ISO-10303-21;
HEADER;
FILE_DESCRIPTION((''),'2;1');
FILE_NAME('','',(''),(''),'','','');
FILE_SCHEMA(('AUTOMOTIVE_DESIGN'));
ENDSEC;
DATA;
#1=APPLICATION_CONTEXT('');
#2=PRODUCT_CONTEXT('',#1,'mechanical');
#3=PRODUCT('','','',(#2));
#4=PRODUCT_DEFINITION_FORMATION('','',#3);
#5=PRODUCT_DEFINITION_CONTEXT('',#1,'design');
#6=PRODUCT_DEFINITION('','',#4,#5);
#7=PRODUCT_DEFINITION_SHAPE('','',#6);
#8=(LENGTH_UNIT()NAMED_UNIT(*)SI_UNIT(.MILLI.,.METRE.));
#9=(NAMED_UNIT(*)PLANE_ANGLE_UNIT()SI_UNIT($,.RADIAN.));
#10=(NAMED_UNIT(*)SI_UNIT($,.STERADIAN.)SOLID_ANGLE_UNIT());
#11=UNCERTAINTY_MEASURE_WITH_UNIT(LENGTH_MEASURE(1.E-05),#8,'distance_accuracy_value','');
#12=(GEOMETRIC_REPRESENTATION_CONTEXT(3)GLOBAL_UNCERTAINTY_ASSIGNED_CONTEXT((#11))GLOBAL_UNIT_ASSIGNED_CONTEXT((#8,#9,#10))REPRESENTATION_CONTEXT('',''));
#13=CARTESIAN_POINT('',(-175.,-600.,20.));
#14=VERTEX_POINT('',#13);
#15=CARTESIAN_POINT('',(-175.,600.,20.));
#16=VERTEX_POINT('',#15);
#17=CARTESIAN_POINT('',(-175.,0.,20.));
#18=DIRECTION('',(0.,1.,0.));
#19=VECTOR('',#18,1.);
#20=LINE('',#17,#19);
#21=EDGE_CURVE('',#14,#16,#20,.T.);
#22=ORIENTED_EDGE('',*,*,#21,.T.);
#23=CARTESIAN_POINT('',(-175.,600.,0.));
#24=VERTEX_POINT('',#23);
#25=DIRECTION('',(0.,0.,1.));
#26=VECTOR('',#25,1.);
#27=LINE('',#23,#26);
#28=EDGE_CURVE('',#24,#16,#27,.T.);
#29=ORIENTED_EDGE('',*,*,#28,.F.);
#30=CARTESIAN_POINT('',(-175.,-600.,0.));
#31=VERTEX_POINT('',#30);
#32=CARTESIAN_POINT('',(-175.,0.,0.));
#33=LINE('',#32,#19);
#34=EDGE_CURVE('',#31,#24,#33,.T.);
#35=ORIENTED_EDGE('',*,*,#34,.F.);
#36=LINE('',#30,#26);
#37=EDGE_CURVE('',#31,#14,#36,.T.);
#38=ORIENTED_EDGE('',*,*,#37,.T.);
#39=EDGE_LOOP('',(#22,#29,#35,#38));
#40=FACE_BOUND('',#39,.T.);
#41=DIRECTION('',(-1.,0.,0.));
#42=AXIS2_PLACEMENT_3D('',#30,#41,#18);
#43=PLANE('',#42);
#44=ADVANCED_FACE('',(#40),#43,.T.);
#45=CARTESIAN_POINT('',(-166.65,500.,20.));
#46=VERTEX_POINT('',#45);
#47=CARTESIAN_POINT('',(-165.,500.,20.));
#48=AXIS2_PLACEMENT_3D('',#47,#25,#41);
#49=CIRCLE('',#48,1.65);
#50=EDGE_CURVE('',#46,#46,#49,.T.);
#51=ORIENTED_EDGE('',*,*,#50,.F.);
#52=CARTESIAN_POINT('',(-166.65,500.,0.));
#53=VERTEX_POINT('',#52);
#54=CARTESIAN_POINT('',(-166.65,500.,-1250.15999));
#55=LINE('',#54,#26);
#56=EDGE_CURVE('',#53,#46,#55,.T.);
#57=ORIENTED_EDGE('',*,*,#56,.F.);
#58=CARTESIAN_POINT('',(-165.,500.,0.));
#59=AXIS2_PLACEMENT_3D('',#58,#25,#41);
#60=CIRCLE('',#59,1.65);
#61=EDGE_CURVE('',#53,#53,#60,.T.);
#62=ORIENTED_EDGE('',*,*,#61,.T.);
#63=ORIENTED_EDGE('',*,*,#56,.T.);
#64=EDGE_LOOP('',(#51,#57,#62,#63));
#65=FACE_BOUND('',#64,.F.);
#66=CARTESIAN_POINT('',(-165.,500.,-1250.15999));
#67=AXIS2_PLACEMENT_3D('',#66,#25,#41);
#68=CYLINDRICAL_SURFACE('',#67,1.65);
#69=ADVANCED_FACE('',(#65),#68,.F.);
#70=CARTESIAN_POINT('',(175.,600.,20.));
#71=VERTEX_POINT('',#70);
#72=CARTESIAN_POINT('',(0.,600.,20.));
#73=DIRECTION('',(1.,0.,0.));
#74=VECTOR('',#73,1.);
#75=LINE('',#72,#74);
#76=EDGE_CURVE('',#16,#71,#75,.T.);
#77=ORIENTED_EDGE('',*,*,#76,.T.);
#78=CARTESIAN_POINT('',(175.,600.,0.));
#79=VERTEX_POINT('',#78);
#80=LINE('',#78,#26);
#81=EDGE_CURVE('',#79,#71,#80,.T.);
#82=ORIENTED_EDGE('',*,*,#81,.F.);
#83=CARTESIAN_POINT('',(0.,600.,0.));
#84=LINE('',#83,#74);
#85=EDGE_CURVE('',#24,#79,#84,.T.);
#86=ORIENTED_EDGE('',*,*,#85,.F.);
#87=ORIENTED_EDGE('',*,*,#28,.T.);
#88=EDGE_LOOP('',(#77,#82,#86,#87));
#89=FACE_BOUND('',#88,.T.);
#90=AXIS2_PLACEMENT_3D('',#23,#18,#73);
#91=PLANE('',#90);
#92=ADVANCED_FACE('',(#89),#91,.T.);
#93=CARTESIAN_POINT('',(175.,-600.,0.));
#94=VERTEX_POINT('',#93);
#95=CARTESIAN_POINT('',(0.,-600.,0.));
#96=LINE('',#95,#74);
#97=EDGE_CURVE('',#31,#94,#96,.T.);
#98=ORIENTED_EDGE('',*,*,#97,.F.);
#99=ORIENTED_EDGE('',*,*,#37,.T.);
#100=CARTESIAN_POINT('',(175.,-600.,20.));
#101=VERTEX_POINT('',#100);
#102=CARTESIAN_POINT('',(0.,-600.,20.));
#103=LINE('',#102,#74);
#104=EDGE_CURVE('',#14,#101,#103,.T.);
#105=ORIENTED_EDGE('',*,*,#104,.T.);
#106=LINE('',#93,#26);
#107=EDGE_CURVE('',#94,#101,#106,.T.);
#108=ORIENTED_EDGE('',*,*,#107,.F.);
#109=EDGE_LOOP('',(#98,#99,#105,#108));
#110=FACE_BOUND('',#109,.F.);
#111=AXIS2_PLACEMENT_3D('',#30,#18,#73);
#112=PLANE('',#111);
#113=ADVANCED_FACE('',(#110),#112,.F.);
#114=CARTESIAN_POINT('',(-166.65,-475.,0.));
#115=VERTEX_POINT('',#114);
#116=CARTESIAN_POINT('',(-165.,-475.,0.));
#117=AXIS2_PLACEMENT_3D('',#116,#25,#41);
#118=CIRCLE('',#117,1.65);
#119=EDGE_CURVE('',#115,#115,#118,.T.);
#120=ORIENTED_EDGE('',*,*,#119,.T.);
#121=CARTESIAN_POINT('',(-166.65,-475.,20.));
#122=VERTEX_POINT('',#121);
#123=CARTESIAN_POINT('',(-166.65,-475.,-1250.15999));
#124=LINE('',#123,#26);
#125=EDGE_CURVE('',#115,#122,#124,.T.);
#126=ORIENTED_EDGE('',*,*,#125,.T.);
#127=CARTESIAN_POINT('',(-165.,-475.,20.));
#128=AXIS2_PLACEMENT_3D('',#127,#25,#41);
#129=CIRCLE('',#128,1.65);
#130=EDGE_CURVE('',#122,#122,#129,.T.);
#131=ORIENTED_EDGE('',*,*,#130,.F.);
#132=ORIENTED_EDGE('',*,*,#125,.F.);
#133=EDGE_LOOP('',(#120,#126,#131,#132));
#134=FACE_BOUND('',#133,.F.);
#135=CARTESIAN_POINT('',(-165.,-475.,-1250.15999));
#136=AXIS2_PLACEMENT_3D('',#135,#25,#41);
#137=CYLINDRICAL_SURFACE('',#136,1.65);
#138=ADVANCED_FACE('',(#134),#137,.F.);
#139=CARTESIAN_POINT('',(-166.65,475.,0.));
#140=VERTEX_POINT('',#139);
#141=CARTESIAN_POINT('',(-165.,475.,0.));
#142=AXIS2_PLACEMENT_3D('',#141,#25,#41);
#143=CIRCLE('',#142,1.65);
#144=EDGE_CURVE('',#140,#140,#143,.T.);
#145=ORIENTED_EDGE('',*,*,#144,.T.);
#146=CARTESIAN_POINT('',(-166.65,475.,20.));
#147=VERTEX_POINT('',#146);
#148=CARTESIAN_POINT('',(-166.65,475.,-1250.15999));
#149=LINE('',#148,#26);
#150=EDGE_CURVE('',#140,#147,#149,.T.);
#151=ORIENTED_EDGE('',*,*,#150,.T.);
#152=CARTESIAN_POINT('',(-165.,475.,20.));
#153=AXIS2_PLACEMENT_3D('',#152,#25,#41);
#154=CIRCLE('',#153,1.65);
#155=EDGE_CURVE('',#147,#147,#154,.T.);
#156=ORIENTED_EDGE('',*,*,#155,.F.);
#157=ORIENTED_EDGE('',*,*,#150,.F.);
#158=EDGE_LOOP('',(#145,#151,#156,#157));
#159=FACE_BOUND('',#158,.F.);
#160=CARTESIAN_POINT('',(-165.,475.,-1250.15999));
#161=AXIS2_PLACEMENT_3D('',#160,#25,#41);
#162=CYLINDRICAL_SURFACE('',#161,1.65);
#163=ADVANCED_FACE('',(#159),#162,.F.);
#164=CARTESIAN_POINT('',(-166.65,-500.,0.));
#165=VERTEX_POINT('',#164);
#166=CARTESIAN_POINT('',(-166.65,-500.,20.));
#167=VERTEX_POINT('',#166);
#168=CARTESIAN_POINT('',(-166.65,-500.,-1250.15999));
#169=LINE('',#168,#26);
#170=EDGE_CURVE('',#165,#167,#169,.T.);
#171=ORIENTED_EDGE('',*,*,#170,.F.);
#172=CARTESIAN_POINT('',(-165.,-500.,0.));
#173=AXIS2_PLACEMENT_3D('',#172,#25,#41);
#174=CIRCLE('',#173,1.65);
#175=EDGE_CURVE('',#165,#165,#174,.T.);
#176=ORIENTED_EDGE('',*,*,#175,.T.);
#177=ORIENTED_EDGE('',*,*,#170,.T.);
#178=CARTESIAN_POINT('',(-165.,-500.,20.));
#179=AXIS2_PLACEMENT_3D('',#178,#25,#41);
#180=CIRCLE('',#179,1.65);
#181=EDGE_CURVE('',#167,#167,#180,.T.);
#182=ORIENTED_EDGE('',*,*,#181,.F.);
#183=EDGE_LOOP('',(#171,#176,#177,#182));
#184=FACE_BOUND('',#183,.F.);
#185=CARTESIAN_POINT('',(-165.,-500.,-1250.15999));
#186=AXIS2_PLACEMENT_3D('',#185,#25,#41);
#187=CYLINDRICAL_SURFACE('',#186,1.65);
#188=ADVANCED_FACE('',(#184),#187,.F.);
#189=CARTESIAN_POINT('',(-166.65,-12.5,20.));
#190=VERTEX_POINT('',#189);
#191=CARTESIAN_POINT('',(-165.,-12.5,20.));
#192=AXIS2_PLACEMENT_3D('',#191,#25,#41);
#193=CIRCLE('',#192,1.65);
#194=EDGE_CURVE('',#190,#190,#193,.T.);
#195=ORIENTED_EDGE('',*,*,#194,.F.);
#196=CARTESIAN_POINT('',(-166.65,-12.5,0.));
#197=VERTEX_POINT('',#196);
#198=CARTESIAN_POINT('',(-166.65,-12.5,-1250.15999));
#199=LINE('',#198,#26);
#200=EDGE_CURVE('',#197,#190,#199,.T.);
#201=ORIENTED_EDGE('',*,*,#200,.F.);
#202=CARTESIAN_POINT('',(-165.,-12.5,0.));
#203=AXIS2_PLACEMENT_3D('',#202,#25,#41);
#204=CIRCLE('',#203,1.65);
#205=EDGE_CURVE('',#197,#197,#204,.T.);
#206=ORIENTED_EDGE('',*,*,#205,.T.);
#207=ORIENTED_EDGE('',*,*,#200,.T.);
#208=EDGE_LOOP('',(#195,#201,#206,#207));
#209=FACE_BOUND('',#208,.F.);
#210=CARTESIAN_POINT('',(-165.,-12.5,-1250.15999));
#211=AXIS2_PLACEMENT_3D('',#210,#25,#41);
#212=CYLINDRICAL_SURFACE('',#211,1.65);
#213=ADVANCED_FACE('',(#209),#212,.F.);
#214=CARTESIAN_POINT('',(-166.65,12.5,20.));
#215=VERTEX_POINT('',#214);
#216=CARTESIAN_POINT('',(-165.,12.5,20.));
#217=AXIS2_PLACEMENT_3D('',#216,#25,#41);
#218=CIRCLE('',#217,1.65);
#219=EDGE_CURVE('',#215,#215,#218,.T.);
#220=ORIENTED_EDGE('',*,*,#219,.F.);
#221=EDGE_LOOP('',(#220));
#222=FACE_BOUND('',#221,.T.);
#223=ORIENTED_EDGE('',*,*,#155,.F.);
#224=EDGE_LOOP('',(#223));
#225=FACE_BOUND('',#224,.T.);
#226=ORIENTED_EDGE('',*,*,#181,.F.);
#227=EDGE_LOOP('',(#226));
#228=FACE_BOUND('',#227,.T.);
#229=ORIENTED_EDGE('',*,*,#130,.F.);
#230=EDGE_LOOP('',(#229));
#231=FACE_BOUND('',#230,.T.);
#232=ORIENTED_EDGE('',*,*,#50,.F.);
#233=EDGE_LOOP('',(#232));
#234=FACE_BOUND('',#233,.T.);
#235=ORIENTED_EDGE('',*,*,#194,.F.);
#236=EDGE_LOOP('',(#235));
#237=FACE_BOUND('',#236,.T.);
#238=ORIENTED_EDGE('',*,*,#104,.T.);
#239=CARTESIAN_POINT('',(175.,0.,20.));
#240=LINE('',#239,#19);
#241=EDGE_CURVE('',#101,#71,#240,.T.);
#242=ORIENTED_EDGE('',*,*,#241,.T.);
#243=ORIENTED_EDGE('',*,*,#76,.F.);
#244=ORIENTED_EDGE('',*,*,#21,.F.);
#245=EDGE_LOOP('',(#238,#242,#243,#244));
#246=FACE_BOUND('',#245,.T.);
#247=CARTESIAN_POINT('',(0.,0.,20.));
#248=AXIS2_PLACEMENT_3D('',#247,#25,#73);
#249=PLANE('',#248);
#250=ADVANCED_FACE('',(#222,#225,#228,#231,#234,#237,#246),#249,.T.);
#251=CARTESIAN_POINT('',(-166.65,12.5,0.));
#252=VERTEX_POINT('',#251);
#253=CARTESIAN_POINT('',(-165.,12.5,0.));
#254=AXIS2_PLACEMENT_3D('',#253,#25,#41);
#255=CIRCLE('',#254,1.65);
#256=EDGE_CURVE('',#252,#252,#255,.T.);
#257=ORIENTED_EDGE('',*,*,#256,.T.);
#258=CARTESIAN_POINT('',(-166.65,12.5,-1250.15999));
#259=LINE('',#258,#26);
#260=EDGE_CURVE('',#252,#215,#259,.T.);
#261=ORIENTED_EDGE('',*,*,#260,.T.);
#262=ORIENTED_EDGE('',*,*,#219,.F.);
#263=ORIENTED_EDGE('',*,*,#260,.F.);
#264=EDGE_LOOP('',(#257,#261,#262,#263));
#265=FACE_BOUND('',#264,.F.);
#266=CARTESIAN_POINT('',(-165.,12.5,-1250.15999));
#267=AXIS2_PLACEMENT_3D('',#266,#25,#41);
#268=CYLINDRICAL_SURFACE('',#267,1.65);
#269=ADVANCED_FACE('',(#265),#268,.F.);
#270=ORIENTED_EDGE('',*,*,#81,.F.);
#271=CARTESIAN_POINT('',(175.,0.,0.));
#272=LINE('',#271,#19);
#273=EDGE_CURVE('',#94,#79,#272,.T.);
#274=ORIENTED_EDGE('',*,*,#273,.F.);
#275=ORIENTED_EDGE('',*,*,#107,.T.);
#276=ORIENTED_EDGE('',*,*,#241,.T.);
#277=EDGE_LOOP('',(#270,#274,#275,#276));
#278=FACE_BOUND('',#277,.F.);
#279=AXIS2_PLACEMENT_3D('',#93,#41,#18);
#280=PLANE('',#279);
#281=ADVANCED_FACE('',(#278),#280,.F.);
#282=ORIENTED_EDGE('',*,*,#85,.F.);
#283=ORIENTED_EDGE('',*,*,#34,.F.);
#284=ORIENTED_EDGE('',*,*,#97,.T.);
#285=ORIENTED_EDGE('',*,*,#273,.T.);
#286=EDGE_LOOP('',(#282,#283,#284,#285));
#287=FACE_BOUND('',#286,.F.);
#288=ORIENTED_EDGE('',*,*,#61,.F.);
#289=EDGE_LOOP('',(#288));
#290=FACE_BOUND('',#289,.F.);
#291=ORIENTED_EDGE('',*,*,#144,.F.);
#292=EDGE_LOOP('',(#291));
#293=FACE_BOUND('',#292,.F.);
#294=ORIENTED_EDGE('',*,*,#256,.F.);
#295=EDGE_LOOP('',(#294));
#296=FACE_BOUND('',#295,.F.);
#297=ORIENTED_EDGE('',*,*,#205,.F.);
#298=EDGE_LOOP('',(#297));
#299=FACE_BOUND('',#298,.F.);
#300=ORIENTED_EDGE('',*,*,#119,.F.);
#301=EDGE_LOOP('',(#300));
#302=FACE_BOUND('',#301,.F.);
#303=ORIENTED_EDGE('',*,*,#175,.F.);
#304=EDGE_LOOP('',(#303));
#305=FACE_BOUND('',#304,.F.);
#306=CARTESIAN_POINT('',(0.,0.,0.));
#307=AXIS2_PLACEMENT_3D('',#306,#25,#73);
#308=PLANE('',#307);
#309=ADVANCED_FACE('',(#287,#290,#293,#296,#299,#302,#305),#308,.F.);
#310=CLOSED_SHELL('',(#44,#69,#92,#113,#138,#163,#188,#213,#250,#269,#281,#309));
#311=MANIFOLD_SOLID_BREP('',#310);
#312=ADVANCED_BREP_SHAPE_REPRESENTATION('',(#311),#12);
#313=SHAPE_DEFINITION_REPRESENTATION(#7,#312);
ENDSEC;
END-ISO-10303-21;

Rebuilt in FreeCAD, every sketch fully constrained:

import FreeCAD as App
import Part
import Sketcher

V = App.Vector
Q = App.Units.Quantity


def add_polygon(sketch, points):
    """Adds a closed chain of lines whose ends are joined by coincident constraints."""
    first, n = sketch.GeometryCount, len(points)
    for a, b in zip(points, points[1:] + points[:1]):
        sketch.addGeometry(Part.LineSegment(App.Vector(*a, 0), App.Vector(*b, 0)), False)
    for i in range(n):
        sketch.addConstraint(Sketcher.Constraint("Coincident", first + i, 2, first + (i + 1) % n, 1))

doc = App.newDocument("Part")
body = doc.addObject("PartDesign::Body", "Body")

sketch1 = body.newObject("Sketcher::SketchObject", "Sketch")
sketch1.AttachmentSupport = (doc.getObject("XY_Plane"), [""])
sketch1.MapMode = "FlatFace"
add_polygon(sketch1, [(-175, 600), (-175, -600), (175, -600), (175, 600)])
sketch1.addConstraint(Sketcher.Constraint("Vertical", 0))
sketch1.addConstraint(Sketcher.Constraint("Horizontal", 1))
sketch1.addConstraint(Sketcher.Constraint("Vertical", 2))
sketch1.addConstraint(Sketcher.Constraint("Horizontal", 3))
sketch1.addConstraint(Sketcher.Constraint("Symmetric", 0, 2, 2, 2, -1, 1))
sketch1.addConstraint(Sketcher.Constraint("DistanceX", 1, 1, 1, 2, Q("350 mm")))
sketch1.addConstraint(Sketcher.Constraint("DistanceY", 0, 2, 0, 1, Q("1200 mm")))
pad1 = body.newObject("PartDesign::Pad", "Pad")
pad1.Profile = sketch1
pad1.Length = 20

sketch2 = body.newObject("Sketcher::SketchObject", "Sketch001")
sketch2.AttachmentSupport = (doc.getObject("XY_Plane"), [""])
sketch2.MapMode = "FlatFace"
sketch2.addGeometry(Part.Circle(V(-165, -500, 0), V(0, 0, 1), 1.6), False)
sketch2.addGeometry(Part.Circle(V(-165, -475, 0), V(0, 0, 1), 1.6), False)
sketch2.addGeometry(Part.Circle(V(-165, -12.5, 0), V(0, 0, 1), 1.6), False)
sketch2.addGeometry(Part.Circle(V(-165, 12.5, 0), V(0, 0, 1), 1.6), False)
sketch2.addGeometry(Part.Circle(V(-165, 500, 0), V(0, 0, 1), 1.6), False)
sketch2.addGeometry(Part.Circle(V(-165, 475, 0), V(0, 0, 1), 1.6), False)
sketch2.addConstraint(Sketcher.Constraint("Equal", 0, 1))
sketch2.addConstraint(Sketcher.Constraint("Equal", 1, 2))
sketch2.addConstraint(Sketcher.Constraint("Equal", 2, 3))
sketch2.addConstraint(Sketcher.Constraint("Equal", 3, 4))
sketch2.addConstraint(Sketcher.Constraint("Equal", 4, 5))
sketch2.addConstraint(Sketcher.Constraint("Symmetric", 2, 3, 3, 3, -1))
sketch2.addConstraint(Sketcher.Constraint("Symmetric", 0, 3, 4, 3, -1))
sketch2.addConstraint(Sketcher.Constraint("Symmetric", 1, 3, 5, 3, -1))
sketch2.addConstraint(Sketcher.Constraint("Vertical", 0, 3, 1, 3))
sketch2.addConstraint(Sketcher.Constraint("Vertical", 1, 3, 2, 3))
sketch2.addConstraint(Sketcher.Constraint("Diameter", 0, Q("3.3 mm")))
sketch2.addConstraint(Sketcher.Constraint("DistanceX", 0, 3, -1, 1, Q("165 mm")))
sketch2.addConstraint(Sketcher.Constraint("DistanceY", 0, 3, -1, 1, Q("500 mm")))
sketch2.addConstraint(Sketcher.Constraint("DistanceY", 1, 3, -1, 1, Q("475 mm")))
sketch2.addConstraint(Sketcher.Constraint("DistanceY", 2, 3, 3, 3, Q("25 mm")))
doc.recompute()
hole = body.newObject("PartDesign::Hole", "Hole")
hole.Profile = sketch2
hole.ThreadType = "None"
hole.Diameter = 3.3
hole.DepthType = "ThroughAll"
hole.Reversed = True

doc.recompute()
